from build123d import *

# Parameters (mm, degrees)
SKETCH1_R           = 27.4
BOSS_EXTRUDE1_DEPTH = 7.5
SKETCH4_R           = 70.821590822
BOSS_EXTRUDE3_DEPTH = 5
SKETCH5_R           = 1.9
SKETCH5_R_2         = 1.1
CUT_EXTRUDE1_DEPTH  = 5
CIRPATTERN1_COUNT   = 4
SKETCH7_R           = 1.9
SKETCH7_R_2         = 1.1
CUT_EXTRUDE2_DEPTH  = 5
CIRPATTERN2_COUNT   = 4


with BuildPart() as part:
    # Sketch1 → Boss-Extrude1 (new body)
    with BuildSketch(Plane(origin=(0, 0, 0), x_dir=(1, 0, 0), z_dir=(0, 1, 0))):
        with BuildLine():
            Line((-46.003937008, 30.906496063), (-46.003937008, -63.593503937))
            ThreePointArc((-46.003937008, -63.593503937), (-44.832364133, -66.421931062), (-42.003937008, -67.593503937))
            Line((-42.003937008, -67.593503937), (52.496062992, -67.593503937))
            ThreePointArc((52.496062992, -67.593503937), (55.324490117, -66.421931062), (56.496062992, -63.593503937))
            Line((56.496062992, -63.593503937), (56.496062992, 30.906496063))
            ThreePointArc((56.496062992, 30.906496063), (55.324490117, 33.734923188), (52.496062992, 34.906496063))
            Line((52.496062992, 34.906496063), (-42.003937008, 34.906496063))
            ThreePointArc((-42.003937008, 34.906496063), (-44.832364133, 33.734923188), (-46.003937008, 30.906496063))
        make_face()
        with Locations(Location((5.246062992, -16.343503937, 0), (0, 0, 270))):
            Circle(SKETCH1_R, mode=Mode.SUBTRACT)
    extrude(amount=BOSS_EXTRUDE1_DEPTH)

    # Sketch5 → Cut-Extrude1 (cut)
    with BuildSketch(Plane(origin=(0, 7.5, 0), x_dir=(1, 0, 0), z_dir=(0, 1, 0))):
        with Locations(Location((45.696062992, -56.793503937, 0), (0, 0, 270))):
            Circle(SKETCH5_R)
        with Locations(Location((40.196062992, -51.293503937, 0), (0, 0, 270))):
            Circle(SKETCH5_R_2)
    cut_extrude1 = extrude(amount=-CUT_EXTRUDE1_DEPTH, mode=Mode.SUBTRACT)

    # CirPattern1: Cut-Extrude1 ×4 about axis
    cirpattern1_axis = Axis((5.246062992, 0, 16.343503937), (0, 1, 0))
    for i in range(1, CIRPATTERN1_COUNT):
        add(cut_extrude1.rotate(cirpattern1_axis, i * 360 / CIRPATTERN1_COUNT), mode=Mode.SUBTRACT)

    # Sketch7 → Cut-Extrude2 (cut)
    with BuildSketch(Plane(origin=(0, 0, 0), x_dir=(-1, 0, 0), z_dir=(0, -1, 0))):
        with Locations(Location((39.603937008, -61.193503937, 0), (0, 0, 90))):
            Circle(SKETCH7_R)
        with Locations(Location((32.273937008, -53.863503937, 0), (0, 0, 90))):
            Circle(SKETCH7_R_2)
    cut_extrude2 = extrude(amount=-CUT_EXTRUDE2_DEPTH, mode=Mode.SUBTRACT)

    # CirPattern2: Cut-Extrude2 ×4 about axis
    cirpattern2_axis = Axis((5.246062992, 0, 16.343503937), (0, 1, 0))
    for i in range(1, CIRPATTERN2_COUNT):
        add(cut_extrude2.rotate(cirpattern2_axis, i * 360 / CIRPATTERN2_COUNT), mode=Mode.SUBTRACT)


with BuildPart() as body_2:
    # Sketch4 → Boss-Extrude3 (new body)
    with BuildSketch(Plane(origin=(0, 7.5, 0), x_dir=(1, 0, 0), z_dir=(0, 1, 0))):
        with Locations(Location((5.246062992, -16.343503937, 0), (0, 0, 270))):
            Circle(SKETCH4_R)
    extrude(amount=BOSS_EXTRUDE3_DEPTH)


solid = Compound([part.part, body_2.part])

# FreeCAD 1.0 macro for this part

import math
import FreeCAD as App
import Part
import Sketcher

V = App.Vector
Q = App.Units.Quantity

doc = App.newDocument("Part")
body = doc.addObject("PartDesign::Body", "Body")

# Sketch on XZ plane
sketch1 = body.newObject("Sketcher::SketchObject", "Sketch")
sketch1.AttachmentSupport = (doc.getObject("XZ_Plane"), [""])
sketch1.MapMode = "FlatFace"
sketch1.addGeometry([
    Part.LineSegment(V(-46, -30.9, 0), V(-46, 63.6, 0)),  # 0
    Part.ArcOfCircle(Part.Circle(V(-42, 63.6, 0), V(0, 0, 1), 4), math.radians(90), math.radians(180)),  # 1
    Part.LineSegment(V(-42, 67.6, 0), V(52.5, 67.6, 0)),  # 2
    Part.ArcOfCircle(Part.Circle(V(52.5, 63.6, 0), V(0, 0, 1), 4), math.radians(0), math.radians(90)),  # 3
    Part.LineSegment(V(56.5, 63.6, 0), V(56.5, -30.9, 0)),  # 4
    Part.ArcOfCircle(Part.Circle(V(52.5, -30.9, 0), V(0, 0, 1), 4), math.radians(-90), math.radians(0)),  # 5
    Part.LineSegment(V(52.5, -34.9, 0), V(-42, -34.9, 0)),  # 6
    Part.ArcOfCircle(Part.Circle(V(-42, -30.9, 0), V(0, 0, 1), 4), math.radians(180), math.radians(270)),  # 7
    Part.Circle(V(5.2, 16.3, 0), V(0, 0, 1), 27.4),  # 8
], False)
sketch1.addConstraint([
    Sketcher.Constraint("Tangent", 0, 2, 1, 2),
    Sketcher.Constraint("Tangent", 1, 1, 2, 1),
    Sketcher.Constraint("Tangent", 2, 2, 3, 2),
    Sketcher.Constraint("Tangent", 3, 1, 4, 1),
    Sketcher.Constraint("Tangent", 4, 2, 5, 2),
    Sketcher.Constraint("Tangent", 5, 1, 6, 1),
    Sketcher.Constraint("Tangent", 6, 2, 7, 2),
    Sketcher.Constraint("Tangent", 7, 1, 0, 1),
    Sketcher.Constraint("Vertical", 0),
    Sketcher.Constraint("Horizontal", 2),
    Sketcher.Constraint("Vertical", 4),
    Sketcher.Constraint("Horizontal", 6),
    Sketcher.Constraint("Equal", 1, 3),
    Sketcher.Constraint("Equal", 3, 5),
    Sketcher.Constraint("Equal", 5, 7),
    Sketcher.Constraint("Equal", 6, 0),
    Sketcher.Constraint("Radius", 1, Q("4 mm")),
    Sketcher.Constraint("Diameter", 8, Q("54.8 mm")),
    Sketcher.Constraint("DistanceX", 2, 1, 2, 2, Q("94.5 mm")),
    Sketcher.Constraint("DistanceX", 1, 3, 8, 3, Q("47.25 mm")),
    Sketcher.Constraint("DistanceY", 8, 3, 1, 3, Q("47.25 mm")),
    Sketcher.Constraint("DistanceX", 1, 3, -1, 1, Q("42.003937 mm")),
    Sketcher.Constraint("DistanceY", -1, 1, 1, 3, Q("63.593504 mm")),
])
pad1 = body.newObject("PartDesign::Pad", "Pad")
pad1.Profile = sketch1
pad1.Length = 7.5
pad1.Reversed = True

# Sketch on XZ plane
sketch2 = body.newObject("Sketcher::SketchObject", "Sketch001")
sketch2.AttachmentSupport = (doc.getObject("XZ_Plane"), [""])
sketch2.MapMode = "FlatFace"
sketch2.AttachmentOffset = App.Placement(V(0, 0, -7.5), App.Rotation())
sketch2.addGeometry([
    Part.Circle(V(45.7, 56.8, 0), V(0, 0, 1), 1.9),
    Part.Circle(V(40.2, 51.3, 0), V(0, 0, 1), 1.1),
], False)
sketch2.addConstraint([
    Sketcher.Constraint("Diameter", 0, Q("3.8 mm")),
    Sketcher.Constraint("Diameter", 1, Q("2.2 mm")),
    Sketcher.Constraint("DistanceX", 1, 3, 0, 3, Q("5.5 mm")),
    Sketcher.Constraint("DistanceY", 1, 3, 0, 3, Q("5.5 mm")),
    Sketcher.Constraint("DistanceX", -1, 1, 0, 3, Q("45.696063 mm")),
    Sketcher.Constraint("DistanceY", -1, 1, 0, 3, Q("56.793504 mm")),
])
pocket1 = body.newObject("PartDesign::Pocket", "Pocket")
pocket1.Profile = sketch2
pocket1.Length = 5
pocket1.Reversed = True
doc.recompute()

datumline = body.newObject("PartDesign::Line", "DatumLine")
datumline.Placement = App.Placement(V(5.246063, 0, 16.343504), App.Rotation(V(0, 0, 1), V(0, 1, 0)))
polarpattern = body.newObject("PartDesign::PolarPattern", "PolarPattern")
polarpattern.Originals = [pocket1]
polarpattern.Axis = (datumline, [""])
polarpattern.Angle = 360
polarpattern.Occurrences = 4
body.Tip = polarpattern

# Sketch on XZ plane
sketch3 = body.newObject("Sketcher::SketchObject", "Sketch002")
sketch3.AttachmentSupport = (doc.getObject("XZ_Plane"), [""])
sketch3.MapMode = "FlatFace"
sketch3.addGeometry([
    Part.Circle(V(-39.6, 61.2, 0), V(0, 0, 1), 1.9),
    Part.Circle(V(-32.3, 53.9, 0), V(0, 0, 1), 1.1),
], False)
sketch3.addConstraint([
    Sketcher.Constraint("Diameter", 0, Q("3.8 mm")),
    Sketcher.Constraint("Diameter", 1, Q("2.2 mm")),
    Sketcher.Constraint("DistanceX", 0, 3, 1, 3, Q("7.33 mm")),
    Sketcher.Constraint("DistanceY", 1, 3, 0, 3, Q("7.33 mm")),
    Sketcher.Constraint("DistanceX", 0, 3, -1, 1, Q("39.603937 mm")),
    Sketcher.Constraint("DistanceY", -1, 1, 0, 3, Q("61.193504 mm")),
])
pocket2 = body.newObject("PartDesign::Pocket", "Pocket001")
pocket2.Profile = sketch3
pocket2.Length = 5
doc.recompute()

datumline2 = body.newObject("PartDesign::Line", "DatumLine001")
datumline2.Placement = App.Placement(V(5.246063, 0, 16.343504), App.Rotation(V(0, 0, 1), V(0, 1, 0)))
polarpattern2 = body.newObject("PartDesign::PolarPattern", "PolarPattern001")
polarpattern2.Originals = [pocket2]
polarpattern2.Axis = (datumline2, [""])
polarpattern2.Angle = 360
polarpattern2.Occurrences = 4
body.Tip = polarpattern2
body2 = doc.addObject("PartDesign::Body", "Body001")

# Sketch on XZ plane
sketch4 = body2.newObject("Sketcher::SketchObject", "Sketch003")
sketch4.AttachmentSupport = (doc.getObject("XZ_Plane001"), [""])
sketch4.MapMode = "FlatFace"
sketch4.AttachmentOffset = App.Placement(V(0, 0, -7.5), App.Rotation())
sketch4.addGeometry(Part.Circle(V(5, 16, 0), V(0, 0, 1), 71), False)
sketch4.addConstraint([
    Sketcher.Constraint("Diameter", 0, Q("141.643182 mm")),
    Sketcher.Constraint("DistanceX", -1, 1, 0, 3, Q("5.246063 mm")),
    Sketcher.Constraint("DistanceY", -1, 1, 0, 3, Q("16.343504 mm")),
])
pad2 = body2.newObject("PartDesign::Pad", "Pad001")
pad2.Profile = sketch4
pad2.Length = 5
pad2.Reversed = True

doc.recompute()
